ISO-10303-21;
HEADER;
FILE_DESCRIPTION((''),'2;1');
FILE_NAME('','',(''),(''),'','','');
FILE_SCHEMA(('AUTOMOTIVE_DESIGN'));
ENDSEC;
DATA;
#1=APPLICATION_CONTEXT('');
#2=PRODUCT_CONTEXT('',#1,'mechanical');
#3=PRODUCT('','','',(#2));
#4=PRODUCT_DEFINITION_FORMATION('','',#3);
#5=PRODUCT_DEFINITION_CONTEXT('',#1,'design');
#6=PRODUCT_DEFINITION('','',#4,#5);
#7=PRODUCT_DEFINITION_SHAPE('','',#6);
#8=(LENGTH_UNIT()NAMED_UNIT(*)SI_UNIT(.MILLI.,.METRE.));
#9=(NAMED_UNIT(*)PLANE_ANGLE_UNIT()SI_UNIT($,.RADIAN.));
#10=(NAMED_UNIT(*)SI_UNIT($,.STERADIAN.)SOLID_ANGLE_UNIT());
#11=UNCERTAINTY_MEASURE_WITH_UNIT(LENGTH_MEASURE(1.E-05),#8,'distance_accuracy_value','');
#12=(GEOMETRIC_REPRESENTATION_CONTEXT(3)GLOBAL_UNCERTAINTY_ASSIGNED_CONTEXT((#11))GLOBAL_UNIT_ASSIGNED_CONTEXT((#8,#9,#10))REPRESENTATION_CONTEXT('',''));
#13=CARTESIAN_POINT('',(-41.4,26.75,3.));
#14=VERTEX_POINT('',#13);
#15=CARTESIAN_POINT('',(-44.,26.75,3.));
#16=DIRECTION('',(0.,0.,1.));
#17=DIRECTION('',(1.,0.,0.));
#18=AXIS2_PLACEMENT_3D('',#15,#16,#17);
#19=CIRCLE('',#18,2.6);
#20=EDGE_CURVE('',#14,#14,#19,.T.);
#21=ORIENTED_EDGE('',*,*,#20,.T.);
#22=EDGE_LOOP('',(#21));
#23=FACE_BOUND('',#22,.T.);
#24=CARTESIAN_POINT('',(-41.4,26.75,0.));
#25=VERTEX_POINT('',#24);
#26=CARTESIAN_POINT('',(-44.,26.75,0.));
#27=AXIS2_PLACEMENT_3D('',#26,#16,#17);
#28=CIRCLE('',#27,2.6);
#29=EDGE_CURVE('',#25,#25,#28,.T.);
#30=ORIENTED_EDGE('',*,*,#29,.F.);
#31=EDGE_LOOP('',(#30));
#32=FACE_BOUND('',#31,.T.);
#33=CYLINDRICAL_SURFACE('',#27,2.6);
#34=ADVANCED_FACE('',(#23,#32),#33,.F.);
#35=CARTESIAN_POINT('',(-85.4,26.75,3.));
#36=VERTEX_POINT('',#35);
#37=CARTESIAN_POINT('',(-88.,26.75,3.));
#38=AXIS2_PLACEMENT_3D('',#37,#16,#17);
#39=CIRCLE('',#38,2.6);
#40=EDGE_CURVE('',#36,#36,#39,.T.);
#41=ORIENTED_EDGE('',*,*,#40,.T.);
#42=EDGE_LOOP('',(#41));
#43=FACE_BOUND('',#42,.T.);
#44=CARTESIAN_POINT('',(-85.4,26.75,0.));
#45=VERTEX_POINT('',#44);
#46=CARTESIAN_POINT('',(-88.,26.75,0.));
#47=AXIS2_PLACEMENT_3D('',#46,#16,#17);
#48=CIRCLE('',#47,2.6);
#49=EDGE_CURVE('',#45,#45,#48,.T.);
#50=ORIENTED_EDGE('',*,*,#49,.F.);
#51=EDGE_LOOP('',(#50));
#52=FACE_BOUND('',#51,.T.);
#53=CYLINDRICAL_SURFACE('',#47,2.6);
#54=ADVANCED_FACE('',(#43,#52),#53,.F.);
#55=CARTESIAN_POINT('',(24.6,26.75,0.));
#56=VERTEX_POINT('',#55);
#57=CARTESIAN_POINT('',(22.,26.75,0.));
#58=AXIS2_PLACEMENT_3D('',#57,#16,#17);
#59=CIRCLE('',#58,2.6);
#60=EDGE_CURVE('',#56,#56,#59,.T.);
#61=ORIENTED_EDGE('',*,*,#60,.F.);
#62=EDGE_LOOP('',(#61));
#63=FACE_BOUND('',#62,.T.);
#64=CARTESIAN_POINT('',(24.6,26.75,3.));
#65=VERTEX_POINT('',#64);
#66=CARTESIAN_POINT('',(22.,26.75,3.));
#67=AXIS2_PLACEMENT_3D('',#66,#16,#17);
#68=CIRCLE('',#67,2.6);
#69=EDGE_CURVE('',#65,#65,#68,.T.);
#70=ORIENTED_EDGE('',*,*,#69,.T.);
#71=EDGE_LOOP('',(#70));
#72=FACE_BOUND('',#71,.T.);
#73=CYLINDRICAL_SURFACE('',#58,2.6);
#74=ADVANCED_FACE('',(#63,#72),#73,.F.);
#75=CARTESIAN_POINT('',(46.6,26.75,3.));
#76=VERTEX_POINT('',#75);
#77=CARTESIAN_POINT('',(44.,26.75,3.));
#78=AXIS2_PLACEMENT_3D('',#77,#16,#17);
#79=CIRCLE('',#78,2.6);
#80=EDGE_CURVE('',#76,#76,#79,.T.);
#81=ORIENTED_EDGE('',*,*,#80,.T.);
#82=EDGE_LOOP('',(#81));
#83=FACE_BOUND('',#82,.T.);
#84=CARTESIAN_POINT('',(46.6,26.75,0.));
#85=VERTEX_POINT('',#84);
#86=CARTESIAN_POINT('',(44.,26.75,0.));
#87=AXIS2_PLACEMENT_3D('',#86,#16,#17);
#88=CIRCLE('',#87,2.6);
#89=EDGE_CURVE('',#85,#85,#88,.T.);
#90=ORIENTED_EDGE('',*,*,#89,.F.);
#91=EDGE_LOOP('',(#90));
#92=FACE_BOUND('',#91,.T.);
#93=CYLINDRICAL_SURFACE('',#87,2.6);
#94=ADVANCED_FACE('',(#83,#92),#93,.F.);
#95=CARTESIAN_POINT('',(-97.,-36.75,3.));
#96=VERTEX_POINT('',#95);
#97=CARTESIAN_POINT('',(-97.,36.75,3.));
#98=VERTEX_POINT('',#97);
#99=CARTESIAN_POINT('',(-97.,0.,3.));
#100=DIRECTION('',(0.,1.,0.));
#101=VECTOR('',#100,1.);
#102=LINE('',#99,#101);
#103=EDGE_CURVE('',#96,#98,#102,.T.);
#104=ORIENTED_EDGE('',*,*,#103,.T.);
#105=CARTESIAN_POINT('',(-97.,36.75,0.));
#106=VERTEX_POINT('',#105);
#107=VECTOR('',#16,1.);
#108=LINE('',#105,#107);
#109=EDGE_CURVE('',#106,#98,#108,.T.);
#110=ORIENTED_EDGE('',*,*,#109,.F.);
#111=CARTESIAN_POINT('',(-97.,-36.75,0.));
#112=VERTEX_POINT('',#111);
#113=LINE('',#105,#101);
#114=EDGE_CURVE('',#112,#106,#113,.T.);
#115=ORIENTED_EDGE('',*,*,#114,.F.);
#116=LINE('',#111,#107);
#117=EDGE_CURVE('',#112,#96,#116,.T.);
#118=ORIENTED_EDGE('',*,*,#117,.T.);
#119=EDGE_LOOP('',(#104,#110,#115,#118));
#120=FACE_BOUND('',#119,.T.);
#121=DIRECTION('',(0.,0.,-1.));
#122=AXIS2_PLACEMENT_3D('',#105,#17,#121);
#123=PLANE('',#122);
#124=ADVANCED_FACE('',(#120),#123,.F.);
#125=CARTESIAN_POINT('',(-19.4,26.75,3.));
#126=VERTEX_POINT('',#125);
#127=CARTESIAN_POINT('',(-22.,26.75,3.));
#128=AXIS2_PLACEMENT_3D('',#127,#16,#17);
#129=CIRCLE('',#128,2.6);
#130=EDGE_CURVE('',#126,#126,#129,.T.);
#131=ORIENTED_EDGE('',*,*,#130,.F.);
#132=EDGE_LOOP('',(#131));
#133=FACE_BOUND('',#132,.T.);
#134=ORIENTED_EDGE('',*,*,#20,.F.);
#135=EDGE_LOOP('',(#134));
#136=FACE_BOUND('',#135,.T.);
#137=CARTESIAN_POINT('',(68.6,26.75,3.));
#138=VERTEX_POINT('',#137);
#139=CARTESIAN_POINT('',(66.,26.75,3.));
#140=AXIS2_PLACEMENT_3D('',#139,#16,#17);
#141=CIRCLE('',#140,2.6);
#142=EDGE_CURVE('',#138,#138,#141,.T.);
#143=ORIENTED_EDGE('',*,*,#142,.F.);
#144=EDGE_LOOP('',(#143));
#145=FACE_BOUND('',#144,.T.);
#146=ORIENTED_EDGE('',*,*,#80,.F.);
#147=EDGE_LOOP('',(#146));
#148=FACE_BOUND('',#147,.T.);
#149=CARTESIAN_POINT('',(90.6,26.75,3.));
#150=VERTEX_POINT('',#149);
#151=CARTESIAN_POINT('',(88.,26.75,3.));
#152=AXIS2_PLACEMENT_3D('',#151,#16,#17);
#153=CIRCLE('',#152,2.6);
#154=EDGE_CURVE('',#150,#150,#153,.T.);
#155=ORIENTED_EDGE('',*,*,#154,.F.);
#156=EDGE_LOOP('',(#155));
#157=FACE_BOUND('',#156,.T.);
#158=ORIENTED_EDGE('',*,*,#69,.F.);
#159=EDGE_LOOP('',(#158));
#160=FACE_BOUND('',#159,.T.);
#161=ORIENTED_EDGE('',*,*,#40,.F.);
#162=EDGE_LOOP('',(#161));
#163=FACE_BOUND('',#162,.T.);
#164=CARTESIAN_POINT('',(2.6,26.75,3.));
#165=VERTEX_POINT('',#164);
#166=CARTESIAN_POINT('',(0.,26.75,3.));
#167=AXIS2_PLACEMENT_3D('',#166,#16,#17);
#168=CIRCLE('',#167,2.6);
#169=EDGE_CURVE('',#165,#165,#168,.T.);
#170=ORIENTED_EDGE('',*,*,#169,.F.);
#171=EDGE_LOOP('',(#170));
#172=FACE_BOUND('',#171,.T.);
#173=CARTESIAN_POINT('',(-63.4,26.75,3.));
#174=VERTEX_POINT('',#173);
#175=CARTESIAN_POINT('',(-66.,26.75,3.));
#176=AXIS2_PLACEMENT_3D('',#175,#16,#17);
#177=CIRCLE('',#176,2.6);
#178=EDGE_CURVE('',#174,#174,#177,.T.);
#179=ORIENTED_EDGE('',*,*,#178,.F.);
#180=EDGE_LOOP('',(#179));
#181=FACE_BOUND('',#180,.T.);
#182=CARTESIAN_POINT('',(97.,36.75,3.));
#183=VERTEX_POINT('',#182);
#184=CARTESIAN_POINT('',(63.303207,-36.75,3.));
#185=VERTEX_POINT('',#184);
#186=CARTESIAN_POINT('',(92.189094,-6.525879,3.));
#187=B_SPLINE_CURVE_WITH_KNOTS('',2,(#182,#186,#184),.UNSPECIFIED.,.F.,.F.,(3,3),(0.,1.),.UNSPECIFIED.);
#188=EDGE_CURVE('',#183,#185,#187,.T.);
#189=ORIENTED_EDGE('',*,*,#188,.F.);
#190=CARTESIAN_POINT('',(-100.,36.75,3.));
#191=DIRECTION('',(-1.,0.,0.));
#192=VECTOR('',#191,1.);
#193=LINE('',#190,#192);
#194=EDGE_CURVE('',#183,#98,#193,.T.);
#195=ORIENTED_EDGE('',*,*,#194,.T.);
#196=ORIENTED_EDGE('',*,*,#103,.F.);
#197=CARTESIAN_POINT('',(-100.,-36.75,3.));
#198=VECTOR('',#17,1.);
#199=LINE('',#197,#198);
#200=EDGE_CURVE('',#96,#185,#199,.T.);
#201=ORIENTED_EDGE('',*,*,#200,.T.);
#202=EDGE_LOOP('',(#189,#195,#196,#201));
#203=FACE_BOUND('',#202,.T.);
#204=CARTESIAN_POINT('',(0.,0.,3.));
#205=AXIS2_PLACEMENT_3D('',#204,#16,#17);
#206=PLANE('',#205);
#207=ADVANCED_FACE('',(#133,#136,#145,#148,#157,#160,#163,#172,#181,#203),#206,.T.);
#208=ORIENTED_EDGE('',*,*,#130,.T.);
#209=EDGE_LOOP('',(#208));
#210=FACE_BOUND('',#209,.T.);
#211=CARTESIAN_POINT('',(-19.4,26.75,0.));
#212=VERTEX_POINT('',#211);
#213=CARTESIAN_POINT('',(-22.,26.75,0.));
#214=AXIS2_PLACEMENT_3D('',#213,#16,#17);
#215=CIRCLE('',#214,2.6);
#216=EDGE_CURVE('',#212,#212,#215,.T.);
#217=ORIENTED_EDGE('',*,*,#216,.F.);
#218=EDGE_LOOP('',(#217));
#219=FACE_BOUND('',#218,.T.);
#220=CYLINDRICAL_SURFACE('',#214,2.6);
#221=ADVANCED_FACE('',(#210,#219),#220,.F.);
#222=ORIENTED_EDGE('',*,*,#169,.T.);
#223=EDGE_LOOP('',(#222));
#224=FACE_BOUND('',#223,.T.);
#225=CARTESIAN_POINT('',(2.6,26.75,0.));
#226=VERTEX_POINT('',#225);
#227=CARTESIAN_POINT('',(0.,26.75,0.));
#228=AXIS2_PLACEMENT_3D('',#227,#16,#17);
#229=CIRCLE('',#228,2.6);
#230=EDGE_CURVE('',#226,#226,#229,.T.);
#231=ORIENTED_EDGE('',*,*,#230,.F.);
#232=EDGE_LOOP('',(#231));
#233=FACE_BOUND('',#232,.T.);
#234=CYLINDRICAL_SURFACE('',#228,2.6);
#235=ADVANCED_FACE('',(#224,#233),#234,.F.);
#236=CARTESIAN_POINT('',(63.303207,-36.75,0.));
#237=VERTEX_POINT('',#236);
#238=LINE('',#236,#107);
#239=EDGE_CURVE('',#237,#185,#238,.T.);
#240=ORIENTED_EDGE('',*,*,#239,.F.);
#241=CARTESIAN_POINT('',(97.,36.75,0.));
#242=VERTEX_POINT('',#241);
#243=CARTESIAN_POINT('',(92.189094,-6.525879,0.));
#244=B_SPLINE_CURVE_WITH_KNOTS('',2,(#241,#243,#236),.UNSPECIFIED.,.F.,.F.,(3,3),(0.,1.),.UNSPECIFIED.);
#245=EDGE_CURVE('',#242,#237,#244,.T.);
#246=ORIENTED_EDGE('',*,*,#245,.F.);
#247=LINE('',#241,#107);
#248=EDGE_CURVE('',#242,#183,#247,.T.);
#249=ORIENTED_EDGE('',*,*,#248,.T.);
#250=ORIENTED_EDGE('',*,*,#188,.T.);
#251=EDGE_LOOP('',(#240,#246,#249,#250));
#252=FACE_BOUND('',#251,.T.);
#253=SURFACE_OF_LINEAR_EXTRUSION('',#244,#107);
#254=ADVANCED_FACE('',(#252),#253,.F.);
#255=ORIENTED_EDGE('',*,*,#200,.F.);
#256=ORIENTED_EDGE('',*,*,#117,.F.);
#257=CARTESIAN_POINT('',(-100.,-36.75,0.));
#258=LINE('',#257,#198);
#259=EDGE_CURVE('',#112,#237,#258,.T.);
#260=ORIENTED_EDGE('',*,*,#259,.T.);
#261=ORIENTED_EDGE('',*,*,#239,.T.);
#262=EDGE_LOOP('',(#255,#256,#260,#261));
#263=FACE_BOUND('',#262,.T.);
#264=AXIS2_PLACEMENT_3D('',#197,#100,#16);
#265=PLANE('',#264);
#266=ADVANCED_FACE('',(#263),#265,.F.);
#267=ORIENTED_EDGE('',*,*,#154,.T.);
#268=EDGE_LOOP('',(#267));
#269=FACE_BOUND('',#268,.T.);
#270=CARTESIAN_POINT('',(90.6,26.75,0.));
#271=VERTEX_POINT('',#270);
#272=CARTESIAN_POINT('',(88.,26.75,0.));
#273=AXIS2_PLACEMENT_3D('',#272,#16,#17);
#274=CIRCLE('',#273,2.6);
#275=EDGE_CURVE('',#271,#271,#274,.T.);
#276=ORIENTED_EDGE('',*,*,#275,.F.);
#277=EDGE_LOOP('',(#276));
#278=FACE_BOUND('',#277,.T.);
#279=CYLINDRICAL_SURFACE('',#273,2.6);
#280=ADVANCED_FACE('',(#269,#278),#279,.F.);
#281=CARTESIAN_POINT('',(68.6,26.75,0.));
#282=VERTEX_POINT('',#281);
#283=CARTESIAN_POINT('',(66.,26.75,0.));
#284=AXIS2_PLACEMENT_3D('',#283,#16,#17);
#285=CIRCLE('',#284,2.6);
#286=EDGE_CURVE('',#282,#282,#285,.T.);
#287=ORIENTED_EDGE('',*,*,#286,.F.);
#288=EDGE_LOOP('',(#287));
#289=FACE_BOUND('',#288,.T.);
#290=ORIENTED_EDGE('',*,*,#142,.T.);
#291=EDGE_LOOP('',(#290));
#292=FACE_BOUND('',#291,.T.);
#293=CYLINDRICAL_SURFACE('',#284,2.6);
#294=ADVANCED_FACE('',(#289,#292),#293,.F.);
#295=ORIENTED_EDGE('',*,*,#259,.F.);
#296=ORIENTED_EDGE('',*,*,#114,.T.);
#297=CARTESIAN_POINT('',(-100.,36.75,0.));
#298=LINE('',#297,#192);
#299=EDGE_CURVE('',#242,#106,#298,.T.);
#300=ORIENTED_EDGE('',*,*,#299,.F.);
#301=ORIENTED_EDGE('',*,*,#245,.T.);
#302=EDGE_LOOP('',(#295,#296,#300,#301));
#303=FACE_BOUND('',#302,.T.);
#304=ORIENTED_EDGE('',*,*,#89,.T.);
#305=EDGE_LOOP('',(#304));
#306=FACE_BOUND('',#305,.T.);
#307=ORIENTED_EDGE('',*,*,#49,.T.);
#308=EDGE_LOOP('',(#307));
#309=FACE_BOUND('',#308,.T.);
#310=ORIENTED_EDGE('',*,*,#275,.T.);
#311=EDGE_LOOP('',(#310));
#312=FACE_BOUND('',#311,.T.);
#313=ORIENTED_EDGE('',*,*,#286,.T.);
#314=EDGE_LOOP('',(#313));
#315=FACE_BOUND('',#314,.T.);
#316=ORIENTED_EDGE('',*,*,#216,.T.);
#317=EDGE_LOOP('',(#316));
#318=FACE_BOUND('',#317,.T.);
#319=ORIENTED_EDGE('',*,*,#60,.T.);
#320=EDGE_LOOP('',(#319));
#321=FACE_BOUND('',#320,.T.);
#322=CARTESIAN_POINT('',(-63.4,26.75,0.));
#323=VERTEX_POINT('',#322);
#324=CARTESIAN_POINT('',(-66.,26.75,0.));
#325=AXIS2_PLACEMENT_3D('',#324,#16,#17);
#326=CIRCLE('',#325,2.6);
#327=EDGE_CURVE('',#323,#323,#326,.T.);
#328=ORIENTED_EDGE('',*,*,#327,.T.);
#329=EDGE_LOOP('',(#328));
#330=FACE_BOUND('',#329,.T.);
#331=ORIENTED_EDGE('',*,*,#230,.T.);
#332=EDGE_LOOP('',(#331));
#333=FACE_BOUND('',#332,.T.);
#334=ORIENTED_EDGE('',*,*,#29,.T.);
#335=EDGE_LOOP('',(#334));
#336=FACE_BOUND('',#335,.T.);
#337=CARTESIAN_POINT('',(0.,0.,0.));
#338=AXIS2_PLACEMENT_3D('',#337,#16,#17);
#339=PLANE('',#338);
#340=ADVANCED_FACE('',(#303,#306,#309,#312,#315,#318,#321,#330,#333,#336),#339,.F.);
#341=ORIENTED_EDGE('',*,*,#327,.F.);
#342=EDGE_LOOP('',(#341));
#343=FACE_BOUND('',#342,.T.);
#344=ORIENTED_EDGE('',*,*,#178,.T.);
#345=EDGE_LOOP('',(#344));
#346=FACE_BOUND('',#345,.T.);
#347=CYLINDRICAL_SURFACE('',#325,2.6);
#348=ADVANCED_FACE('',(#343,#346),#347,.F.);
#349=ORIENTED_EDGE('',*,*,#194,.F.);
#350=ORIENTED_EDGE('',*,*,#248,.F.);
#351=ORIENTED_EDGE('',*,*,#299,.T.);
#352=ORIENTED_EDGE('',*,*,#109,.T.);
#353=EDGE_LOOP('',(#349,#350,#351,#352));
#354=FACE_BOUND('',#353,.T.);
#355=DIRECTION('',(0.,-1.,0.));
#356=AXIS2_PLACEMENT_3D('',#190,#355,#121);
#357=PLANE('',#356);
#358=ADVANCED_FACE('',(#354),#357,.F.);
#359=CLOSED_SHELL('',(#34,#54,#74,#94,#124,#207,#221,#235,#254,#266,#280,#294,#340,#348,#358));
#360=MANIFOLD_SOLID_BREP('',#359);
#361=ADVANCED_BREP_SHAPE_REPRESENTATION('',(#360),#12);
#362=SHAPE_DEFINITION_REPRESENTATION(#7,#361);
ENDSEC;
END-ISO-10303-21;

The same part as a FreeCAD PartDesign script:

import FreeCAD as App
import Part
import Sketcher
from FreeCAD import Vector

doc = App.newDocument("Part")
params = doc.addObject("Spreadsheet::Sheet", "Params")
for row, (alias, value) in enumerate([
    ("sketch1_width", "200 mm"),
    ("sketch1_height", "73.5 mm"),
    ("pad1_length", "3 mm"),
    ("sketch2_diameter", "5.2 mm"),
    ("pocket1_length", "215.162497 mm"),
    ("linearpattern_pitch", "22 mm"),
    ("linearpattern2_pitch", "22 mm"),
    ("sketch3_width", "3 mm"),
    ("sketch3_height", "73.5 mm"),
], start=1):
    params.set(f"A{row}", alias)
    params.set(f"B{row}", "=" + value)
    params.setAlias(f"B{row}", alias)

body = doc.addObject("PartDesign::Body", "Body")

# Sketch on XY plane
sketch1 = body.newObject("Sketcher::SketchObject", "Sketch")
sketch1.AttachmentSupport = (doc.getObject("XY_Plane"), [""])
sketch1.MapMode = "FlatFace"
sketch1.addGeometry(Part.LineSegment(Vector(-100, 37, 0), Vector(-100, -37, 0)), False)
sketch1.addGeometry(Part.LineSegment(Vector(-100, -37, 0), Vector(100, -37, 0)), False)
sketch1.addGeometry(Part.LineSegment(Vector(100, -37, 0), Vector(100, 37, 0)), False)
sketch1.addGeometry(Part.LineSegment(Vector(100, 37, 0), Vector(-100, 37, 0)), False)
sketch1.addConstraint(Sketcher.Constraint("Coincident", 0, 2, 1, 1))
sketch1.addConstraint(Sketcher.Constraint("Coincident", 1, 2, 2, 1))
sketch1.addConstraint(Sketcher.Constraint("Coincident", 2, 2, 3, 1))
sketch1.addConstraint(Sketcher.Constraint("Coincident", 3, 2, 0, 1))
sketch1.addConstraint(Sketcher.Constraint("Vertical", 0))
sketch1.addConstraint(Sketcher.Constraint("Horizontal", 1))
sketch1.addConstraint(Sketcher.Constraint("Vertical", 2))
sketch1.addConstraint(Sketcher.Constraint("Horizontal", 3))
sketch1.addConstraint(Sketcher.Constraint("Symmetric", 0, 2, 2, 2, -1, 1))
sketch1.addConstraint(Sketcher.Constraint("DistanceX", 1, 1, 1, 2, 200.0))
sketch1.addConstraint(Sketcher.Constraint("DistanceY", 0, 2, 0, 1, 73.5))
sketch1.setExpression("Constraints[9]", "Params.sketch1_width")
sketch1.setExpression("Constraints[10]", "Params.sketch1_height")
pad1 = body.newObject("PartDesign::Pad", "Pad")
pad1.Profile = sketch1
pad1.setExpression("Length", "Params.pad1_length")

# Sketch on XY plane
sketch2 = body.newObject("Sketcher::SketchObject", "Sketch001")
sketch2.AttachmentSupport = (doc.getObject("XY_Plane"), [""])
sketch2.MapMode = "FlatFace"
sketch2.AttachmentOffset = App.Placement(Vector(0, 0, 3), App.Rotation())
sketch2.addGeometry(Part.Circle(Vector(0, 26.8, 0), Vector(0, 0, 1), 2.6), False)
sketch2.addConstraint(Sketcher.Constraint("PointOnObject", 0, 3, -2))
sketch2.addConstraint(Sketcher.Constraint("Diameter", 0, 5.2))
sketch2.addConstraint(Sketcher.Constraint("DistanceY", -1, 1, 0, 3, 26.75))
sketch2.setExpression("Constraints[1]", "Params.sketch2_diameter")
pocket1 = body.newObject("PartDesign::Pocket", "Pocket")
pocket1.Profile = sketch2
pocket1.setExpression("Length", "Params.pocket1_length")
pocket1.Midplane = True
doc.recompute()

linearpattern = body.newObject("PartDesign::LinearPattern", "LinearPattern")
linearpattern.Originals = [pocket1]
linearpattern.Direction = (doc.getObject("X_Axis"), [""])
linearpattern.Mode = "offset"
linearpattern.setExpression("Offset", "Params.linearpattern_pitch")
linearpattern.Occurrences = 5
body.Tip = linearpattern
doc.recompute()

linearpattern2 = body.newObject("PartDesign::LinearPattern", "LinearPattern001")
linearpattern2.Originals = [pocket1]
linearpattern2.Direction = (doc.getObject("X_Axis"), [""])
linearpattern2.Mode = "offset"
linearpattern2.setExpression("Offset", "Params.linearpattern2_pitch")
linearpattern2.Occurrences = 5
linearpattern2.Reversed = True
body.Tip = linearpattern2

# Sketch on XY plane
sketch3 = body.newObject("Sketcher::SketchObject", "Sketch002")
sketch3.AttachmentSupport = (doc.getObject("XY_Plane"), [""])
sketch3.MapMode = "FlatFace"
sketch3.AttachmentOffset = App.Placement(Vector(0, 0, 3), App.Rotation())
sketch3.addGeometry(Part.LineSegment(Vector(-100, 36.8, 0), Vector(-100, -36.8, 0)), False)
sketch3.addGeometry(Part.LineSegment(Vector(-100, -36.8, 0), Vector(-97, -36.8, 0)), False)
sketch3.addGeometry(Part.LineSegment(Vector(-97, -36.8, 0), Vector(-97, 36.8, 0)), False)
sketch3.addGeometry(Part.LineSegment(Vector(-97, 36.8, 0), Vector(-100, 36.8, 0)), False)
sketch3.addGeometry(Part.LineSegment(Vector(97, 36.8, 0), Vector(97, -36.8, 0)), False)
sketch3.addGeometry(Part.LineSegment(Vector(97, -36.8, 0), Vector(100, -36.8, 0)), False)
sketch3.addGeometry(Part.LineSegment(Vector(100, -36.8, 0), Vector(100, 36.8, 0)), False)
sketch3.addGeometry(Part.LineSegment(Vector(100, 36.8, 0), Vector(97, 36.8, 0)), False)
sketch3.addConstraint(Sketcher.Constraint("Coincident", 0, 2, 1, 1))
sketch3.addConstraint(Sketcher.Constraint("Coincident", 1, 2, 2, 1))
sketch3.addConstraint(Sketcher.Constraint("Coincident", 2, 2, 3, 1))
sketch3.addConstraint(Sketcher.Constraint("Coincident", 3, 2, 0, 1))
sketch3.addConstraint(Sketcher.Constraint("Coincident", 4, 2, 5, 1))
sketch3.addConstraint(Sketcher.Constraint("Coincident", 5, 2, 6, 1))
sketch3.addConstraint(Sketcher.Constraint("Coincident", 6, 2, 7, 1))
sketch3.addConstraint(Sketcher.Constraint("Coincident", 7, 2, 4, 1))
sketch3.addConstraint(Sketcher.Constraint("Vertical", 0))
sketch3.addConstraint(Sketcher.Constraint("Horizontal", 1))
sketch3.addConstraint(Sketcher.Constraint("Vertical", 2))
sketch3.addConstraint(Sketcher.Constraint("Horizontal", 3))
sketch3.addConstraint(Sketcher.Constraint("Vertical", 4))
sketch3.addConstraint(Sketcher.Constraint("Horizontal", 5))
sketch3.addConstraint(Sketcher.Constraint("Vertical", 6))
sketch3.addConstraint(Sketcher.Constraint("Horizontal", 7))
sketch3.addConstraint(Sketcher.Constraint("Symmetric", 2, 2, 4, 2, -1, 1))
sketch3.addConstraint(Sketcher.Constraint("Symmetric", 0, 2, 6, 2, -1, 1))
sketch3.addConstraint(Sketcher.Constraint("Horizontal", 1, 2, 4, 2))
sketch3.addConstraint(Sketcher.Constraint("DistanceX", 1, 1, 1, 2, 3.0))
sketch3.addConstraint(Sketcher.Constraint("DistanceY", 0, 2, 0, 1, 73.5))
sketch3.addConstraint(Sketcher.Constraint("DistanceX", 0, 2, -1, 1, 100.0))
sketch3.setExpression("Constraints[19]", "Params.sketch3_width")
sketch3.setExpression("Constraints[20]", "Params.sketch3_height")
pocket2 = body.newObject("PartDesign::Pocket", "Pocket001")
pocket2.Profile = sketch3
pocket2.Type = "ThroughAll"
pocket2.Midplane = True

# Sketch on XY plane
sketch4 = body.newObject("Sketcher::SketchObject", "Sketch003")
sketch4.AttachmentSupport = (doc.getObject("XY_Plane"), [""])
sketch4.MapMode = "FlatFace"
sketch4.AttachmentOffset = App.Placement(Vector(0, 0, 3), App.Rotation())
sketch4.addGeometry(Part.LineSegment(Vector(63.303207, -36.75, 0), Vector(97, -36.75, 0)), False)
sketch4.addGeometry(Part.LineSegment(Vector(97, -36.75, 0), Vector(97, 36.75, 0)), False)
sketch4.addGeometry(Part.BSplineCurve([Vector(63.303207, -36.75, 0), Vector(92.189094, -6.525879, 0), Vector(97, 36.75, 0)], [3, 3], [0, 1], False, 2, [1, 1, 1], False), False)
sketch4.addConstraint(Sketcher.Constraint("Block", 2))
sketch4.addConstraint(Sketcher.Constraint("Coincident", 0, 2, 1, 1))
sketch4.addConstraint(Sketcher.Constraint("Coincident", 1, 2, 2, 2))
sketch4.addConstraint(Sketcher.Constraint("Coincident", 2, 1, 0, 1))
sketch4.addConstraint(Sketcher.Constraint("Horizontal", 0))
sketch4.addConstraint(Sketcher.Constraint("Vertical", 1))
pocket3 = body.newObject("PartDesign::Pocket", "Pocket002")
pocket3.Profile = sketch4
pocket3.Type = "ThroughAll"
pocket3.Midplane = True

doc.recompute()
